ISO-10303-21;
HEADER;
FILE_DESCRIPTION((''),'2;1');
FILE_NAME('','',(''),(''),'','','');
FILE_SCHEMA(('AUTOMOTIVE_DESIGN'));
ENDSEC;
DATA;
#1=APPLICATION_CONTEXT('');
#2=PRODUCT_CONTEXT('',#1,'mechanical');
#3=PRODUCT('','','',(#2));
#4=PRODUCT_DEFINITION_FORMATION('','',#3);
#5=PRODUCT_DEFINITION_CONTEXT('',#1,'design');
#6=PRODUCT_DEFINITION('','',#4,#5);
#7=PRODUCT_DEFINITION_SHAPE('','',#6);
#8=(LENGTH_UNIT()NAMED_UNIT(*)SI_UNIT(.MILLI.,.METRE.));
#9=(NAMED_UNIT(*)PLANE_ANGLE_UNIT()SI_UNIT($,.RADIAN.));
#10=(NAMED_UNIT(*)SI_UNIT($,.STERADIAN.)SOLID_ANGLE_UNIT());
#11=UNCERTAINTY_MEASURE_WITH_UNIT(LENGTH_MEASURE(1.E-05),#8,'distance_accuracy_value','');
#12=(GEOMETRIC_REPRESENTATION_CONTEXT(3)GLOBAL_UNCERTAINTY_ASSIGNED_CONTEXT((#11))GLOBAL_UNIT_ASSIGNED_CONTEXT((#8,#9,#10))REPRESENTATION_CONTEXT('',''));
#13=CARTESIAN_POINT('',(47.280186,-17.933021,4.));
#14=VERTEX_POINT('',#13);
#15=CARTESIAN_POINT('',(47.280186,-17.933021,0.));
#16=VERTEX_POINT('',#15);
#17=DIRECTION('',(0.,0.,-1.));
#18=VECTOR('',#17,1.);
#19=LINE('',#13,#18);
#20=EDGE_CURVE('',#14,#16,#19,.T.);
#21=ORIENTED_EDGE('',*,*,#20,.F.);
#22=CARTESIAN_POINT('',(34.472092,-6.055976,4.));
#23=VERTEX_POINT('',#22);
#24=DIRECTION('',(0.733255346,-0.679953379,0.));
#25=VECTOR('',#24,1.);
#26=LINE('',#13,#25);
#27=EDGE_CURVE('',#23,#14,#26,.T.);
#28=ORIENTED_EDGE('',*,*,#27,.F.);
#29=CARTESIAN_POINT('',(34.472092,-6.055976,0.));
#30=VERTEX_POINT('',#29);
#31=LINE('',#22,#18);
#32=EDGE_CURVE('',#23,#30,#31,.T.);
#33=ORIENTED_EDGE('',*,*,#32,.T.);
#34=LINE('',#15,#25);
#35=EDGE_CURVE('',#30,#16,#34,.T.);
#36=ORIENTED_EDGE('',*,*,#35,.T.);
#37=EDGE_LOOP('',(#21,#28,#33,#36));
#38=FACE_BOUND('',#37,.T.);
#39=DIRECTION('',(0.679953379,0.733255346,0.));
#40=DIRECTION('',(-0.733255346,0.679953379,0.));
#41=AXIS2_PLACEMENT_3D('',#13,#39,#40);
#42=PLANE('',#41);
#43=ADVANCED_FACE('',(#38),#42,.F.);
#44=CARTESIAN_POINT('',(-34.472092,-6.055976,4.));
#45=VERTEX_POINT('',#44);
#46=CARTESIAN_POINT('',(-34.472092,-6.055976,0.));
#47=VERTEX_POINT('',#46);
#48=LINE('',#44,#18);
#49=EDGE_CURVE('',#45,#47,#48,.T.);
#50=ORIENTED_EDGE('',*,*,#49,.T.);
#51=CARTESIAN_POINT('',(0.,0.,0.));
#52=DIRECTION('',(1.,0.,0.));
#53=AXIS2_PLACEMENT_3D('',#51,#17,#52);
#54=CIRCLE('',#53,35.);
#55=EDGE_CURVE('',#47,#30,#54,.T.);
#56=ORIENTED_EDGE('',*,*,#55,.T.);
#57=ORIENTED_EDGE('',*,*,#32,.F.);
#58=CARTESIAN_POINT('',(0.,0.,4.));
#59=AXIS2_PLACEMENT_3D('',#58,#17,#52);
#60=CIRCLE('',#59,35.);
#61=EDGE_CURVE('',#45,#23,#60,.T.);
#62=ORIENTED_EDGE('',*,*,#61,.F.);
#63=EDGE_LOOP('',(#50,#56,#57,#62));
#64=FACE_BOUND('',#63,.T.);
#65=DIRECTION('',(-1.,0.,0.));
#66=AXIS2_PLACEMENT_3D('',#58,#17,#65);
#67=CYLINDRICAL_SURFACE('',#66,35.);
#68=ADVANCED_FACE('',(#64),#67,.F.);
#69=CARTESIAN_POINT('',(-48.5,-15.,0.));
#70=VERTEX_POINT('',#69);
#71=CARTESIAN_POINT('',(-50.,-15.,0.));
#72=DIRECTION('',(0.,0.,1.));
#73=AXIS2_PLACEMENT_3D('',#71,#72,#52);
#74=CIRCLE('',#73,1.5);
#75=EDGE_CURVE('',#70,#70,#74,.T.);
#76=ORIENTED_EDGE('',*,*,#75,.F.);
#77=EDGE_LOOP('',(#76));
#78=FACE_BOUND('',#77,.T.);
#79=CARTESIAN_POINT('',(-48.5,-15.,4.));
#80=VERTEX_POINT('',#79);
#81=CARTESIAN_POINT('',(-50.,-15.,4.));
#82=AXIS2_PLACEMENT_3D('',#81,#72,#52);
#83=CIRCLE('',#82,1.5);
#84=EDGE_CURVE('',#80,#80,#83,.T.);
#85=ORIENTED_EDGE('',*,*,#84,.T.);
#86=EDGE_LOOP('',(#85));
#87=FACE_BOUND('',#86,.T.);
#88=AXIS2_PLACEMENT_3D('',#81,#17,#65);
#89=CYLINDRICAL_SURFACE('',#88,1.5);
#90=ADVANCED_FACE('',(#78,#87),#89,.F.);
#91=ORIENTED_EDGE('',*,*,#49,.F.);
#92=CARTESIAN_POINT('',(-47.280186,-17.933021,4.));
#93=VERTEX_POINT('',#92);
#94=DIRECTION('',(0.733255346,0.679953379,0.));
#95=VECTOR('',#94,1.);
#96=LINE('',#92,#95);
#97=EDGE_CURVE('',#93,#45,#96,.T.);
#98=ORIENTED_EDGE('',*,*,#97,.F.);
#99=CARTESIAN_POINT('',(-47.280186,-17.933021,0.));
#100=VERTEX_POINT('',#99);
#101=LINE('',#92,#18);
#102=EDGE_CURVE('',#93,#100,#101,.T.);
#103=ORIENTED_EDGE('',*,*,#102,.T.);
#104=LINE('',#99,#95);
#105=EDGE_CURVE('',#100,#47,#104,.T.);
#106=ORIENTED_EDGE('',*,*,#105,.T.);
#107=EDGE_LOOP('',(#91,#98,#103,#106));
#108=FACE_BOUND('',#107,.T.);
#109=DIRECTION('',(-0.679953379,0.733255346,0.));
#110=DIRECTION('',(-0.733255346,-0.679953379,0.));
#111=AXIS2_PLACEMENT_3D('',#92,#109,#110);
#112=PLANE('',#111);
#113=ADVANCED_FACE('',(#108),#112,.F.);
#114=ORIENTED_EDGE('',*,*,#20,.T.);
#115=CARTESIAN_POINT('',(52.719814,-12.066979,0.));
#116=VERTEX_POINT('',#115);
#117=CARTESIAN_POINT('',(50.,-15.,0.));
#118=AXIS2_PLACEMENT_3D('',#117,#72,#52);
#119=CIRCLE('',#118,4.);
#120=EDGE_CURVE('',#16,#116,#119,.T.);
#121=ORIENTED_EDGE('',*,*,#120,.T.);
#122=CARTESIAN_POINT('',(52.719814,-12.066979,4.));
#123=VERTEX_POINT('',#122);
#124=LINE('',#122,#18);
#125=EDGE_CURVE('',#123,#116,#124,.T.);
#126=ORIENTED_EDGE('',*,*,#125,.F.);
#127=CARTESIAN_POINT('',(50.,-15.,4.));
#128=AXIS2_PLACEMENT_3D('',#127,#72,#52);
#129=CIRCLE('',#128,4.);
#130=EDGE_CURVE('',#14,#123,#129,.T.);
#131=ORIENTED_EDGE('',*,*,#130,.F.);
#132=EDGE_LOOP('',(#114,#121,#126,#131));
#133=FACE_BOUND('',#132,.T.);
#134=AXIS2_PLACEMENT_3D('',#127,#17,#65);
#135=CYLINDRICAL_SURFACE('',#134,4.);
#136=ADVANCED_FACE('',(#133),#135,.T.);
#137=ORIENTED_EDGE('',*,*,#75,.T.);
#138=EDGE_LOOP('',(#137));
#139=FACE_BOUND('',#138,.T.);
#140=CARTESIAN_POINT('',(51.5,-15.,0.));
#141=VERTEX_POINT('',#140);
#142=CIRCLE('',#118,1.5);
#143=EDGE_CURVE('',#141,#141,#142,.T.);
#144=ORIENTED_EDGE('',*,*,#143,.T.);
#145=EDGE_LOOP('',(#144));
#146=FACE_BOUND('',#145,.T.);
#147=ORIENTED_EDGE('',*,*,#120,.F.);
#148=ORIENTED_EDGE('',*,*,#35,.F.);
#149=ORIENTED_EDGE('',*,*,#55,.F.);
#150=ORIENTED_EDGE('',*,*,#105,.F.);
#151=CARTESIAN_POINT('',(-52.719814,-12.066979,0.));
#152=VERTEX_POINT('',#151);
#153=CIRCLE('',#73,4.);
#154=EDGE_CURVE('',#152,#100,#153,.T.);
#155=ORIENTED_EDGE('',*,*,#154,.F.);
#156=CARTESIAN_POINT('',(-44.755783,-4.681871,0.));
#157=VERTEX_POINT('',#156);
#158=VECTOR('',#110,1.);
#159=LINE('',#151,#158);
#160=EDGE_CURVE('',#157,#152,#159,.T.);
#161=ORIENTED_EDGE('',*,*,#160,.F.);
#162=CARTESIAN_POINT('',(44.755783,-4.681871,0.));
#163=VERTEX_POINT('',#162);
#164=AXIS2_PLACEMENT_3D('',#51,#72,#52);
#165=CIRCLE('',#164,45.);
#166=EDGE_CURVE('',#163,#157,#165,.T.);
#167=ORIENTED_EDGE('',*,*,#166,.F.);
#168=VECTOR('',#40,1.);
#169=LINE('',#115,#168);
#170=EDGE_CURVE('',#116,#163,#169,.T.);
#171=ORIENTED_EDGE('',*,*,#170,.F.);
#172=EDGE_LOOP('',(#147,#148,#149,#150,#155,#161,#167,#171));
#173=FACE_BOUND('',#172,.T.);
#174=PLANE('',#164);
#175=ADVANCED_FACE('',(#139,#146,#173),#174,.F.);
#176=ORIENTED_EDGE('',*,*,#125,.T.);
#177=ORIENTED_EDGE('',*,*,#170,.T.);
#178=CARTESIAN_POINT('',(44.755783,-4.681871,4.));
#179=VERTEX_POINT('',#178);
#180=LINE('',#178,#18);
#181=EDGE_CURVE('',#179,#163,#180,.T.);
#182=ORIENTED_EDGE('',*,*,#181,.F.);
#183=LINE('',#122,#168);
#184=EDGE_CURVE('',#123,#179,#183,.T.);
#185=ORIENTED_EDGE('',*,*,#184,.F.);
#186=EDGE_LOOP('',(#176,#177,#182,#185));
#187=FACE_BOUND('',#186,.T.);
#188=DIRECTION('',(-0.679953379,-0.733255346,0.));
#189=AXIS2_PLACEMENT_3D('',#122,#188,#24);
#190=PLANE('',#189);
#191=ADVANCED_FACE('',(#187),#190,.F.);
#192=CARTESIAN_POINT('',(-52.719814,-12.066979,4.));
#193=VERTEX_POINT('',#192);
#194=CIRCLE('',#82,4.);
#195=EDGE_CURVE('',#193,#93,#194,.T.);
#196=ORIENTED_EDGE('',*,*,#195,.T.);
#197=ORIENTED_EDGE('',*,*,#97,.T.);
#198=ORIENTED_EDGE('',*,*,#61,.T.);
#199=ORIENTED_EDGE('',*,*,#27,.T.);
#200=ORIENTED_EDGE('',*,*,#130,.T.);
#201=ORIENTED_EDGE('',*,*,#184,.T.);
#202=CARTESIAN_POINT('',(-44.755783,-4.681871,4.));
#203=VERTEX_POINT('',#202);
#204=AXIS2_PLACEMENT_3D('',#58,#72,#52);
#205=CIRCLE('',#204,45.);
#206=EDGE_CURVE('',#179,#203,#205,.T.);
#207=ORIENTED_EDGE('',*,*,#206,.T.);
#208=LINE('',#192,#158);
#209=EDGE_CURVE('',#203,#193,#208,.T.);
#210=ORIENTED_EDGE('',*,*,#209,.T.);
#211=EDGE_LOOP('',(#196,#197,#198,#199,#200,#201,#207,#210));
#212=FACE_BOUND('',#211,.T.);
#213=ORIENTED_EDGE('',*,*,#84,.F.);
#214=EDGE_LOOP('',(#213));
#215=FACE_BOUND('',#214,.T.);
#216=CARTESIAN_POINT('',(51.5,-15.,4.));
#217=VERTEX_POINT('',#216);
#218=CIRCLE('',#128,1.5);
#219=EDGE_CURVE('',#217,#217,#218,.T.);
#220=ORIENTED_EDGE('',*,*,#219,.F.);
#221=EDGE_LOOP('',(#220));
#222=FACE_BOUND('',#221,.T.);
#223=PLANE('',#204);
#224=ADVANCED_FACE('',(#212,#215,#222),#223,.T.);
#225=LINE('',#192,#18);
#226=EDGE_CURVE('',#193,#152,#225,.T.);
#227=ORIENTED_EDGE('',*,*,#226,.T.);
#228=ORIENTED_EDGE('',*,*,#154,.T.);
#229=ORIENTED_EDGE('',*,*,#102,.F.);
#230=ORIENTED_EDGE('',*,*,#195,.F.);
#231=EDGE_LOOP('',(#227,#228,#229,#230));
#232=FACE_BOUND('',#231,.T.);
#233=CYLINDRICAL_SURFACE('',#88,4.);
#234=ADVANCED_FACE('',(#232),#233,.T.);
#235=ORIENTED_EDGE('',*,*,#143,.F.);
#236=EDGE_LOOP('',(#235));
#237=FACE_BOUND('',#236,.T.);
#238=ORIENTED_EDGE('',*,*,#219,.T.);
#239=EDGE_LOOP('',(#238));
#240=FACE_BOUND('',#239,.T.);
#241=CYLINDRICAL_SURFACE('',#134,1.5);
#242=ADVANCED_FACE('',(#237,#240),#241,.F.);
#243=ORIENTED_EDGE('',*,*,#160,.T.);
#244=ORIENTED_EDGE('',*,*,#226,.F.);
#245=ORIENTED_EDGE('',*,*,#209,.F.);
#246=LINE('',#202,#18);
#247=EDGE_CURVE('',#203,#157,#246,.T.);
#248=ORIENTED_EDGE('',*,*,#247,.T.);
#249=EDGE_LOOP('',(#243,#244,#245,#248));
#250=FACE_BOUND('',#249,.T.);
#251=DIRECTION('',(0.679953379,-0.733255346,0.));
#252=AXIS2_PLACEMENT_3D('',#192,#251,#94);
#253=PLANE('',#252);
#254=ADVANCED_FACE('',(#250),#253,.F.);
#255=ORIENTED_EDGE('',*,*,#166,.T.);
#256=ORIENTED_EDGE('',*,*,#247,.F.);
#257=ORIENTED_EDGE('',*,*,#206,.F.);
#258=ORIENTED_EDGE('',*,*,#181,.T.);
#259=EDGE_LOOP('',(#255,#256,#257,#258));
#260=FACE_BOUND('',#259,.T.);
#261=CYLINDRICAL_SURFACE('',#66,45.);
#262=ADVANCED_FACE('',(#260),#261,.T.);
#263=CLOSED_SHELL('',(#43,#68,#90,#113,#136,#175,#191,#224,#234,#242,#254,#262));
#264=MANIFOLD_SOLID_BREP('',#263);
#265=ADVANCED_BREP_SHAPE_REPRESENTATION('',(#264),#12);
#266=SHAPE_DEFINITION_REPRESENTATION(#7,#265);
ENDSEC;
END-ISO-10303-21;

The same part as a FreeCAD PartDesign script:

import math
import FreeCAD as App
import Part
import Sketcher

V = App.Vector
Q = App.Units.Quantity

doc = App.newDocument("Part")
body = doc.addObject("PartDesign::Body", "Body")

# Sketch on XY plane
sketch1 = body.newObject("Sketcher::SketchObject", "Sketch")
sketch1.AttachmentSupport = (doc.getObject("XY_Plane"), [""])
sketch1.MapMode = "FlatFace"
sketch1.addGeometry(Part.LineSegment(V(-44.8, -4.7, 0), V(-52.7, -12.1, 0)), False)
sketch1.addGeometry(Part.ArcOfCircle(Part.Circle(V(-50, -15, 0), V(0, 0, 1), 4), math.radians(133), math.radians(313)), False)
sketch1.addGeometry(Part.LineSegment(V(-47.3, -17.9, 0), V(-34.5, -6.1, 0)), False)
sketch1.addGeometry(Part.ArcOfCircle(Part.Circle(V(0, 0, 0), V(0, 0, 1), 35), math.radians(-10), math.radians(190)), False)
sketch1.addGeometry(Part.LineSegment(V(34.5, -6.1, 0), V(47.3, -17.9, 0)), False)
sketch1.addGeometry(Part.ArcOfCircle(Part.Circle(V(50, -15, 0), V(0, 0, 1), 4), math.radians(-133), math.radians(47)), False)
sketch1.addGeometry(Part.LineSegment(V(52.7, -12.1, 0), V(44.8, -4.7, 0)), False)
sketch1.addGeometry(Part.ArcOfCircle(Part.Circle(V(0, 0, 0), V(0, 0, 1), 45), math.radians(-6), math.radians(186)), False)
sketch1.addGeometry(Part.Circle(V(50, -15, 0), V(0, 0, 1), 1.5), False)
sketch1.addGeometry(Part.Circle(V(-50, -15, 0), V(0, 0, 1), 1.5), False)
sketch1.addConstraint(Sketcher.Constraint("Tangent", 0, 2, 1, 1))
sketch1.addConstraint(Sketcher.Constraint("Tangent", 1, 2, 2, 1))
sketch1.addConstraint(Sketcher.Constraint("Coincident", 2, 2, 3, 2))
sketch1.addConstraint(Sketcher.Constraint("Coincident", 3, 1, 4, 1))
sketch1.addConstraint(Sketcher.Constraint("Tangent", 4, 2, 5, 1))
sketch1.addConstraint(Sketcher.Constraint("Tangent", 5, 2, 6, 1))
sketch1.addConstraint(Sketcher.Constraint("Coincident", 6, 2, 7, 1))
sketch1.addConstraint(Sketcher.Constraint("Coincident", 7, 2, 0, 1))
sketch1.addConstraint(Sketcher.Constraint("Coincident", 3, 3, -1, 1))
sketch1.addConstraint(Sketcher.Constraint("Coincident", 7, 3, -1, 1))
sketch1.addConstraint(Sketcher.Constraint("Coincident", 8, 3, 5, 3))
sketch1.addConstraint(Sketcher.Constraint("Coincident", 9, 3, 1, 3))
sketch1.addConstraint(Sketcher.Constraint("Equal", 1, 5))
sketch1.addConstraint(Sketcher.Constraint("Equal", 8, 9))
sketch1.addConstraint(Sketcher.Constraint("Symmetric", 1, 3, 5, 3, -2))
sketch1.addConstraint(Sketcher.Constraint("Parallel", 0, 2))
sketch1.addConstraint(Sketcher.Constraint("Parallel", 4, 6))
sketch1.addConstraint(Sketcher.Constraint("Horizontal", 2, 2, 3, 1))
sketch1.addConstraint(Sketcher.Constraint("Diameter", 8, 3.0))
sketch1.addConstraint(Sketcher.Constraint("Radius", 1, 4.0))
sketch1.addConstraint(Sketcher.Constraint("Radius", 3, 35.0))
sketch1.addConstraint(Sketcher.Constraint("Radius", 7, 45.0))
sketch1.addConstraint(Sketcher.Constraint("DistanceX", 1, 3, -1, 1, 50.0))
sketch1.addConstraint(Sketcher.Constraint("DistanceY", 1, 3, -1, 1, 15.0))
sketch1.addConstraint(Sketcher.Constraint("Angle", 0, Q("-137.16 deg")))
pad1 = body.newObject("PartDesign::Pad", "Pad")
pad1.Profile = sketch1
pad1.Length = 4

doc.recompute()
